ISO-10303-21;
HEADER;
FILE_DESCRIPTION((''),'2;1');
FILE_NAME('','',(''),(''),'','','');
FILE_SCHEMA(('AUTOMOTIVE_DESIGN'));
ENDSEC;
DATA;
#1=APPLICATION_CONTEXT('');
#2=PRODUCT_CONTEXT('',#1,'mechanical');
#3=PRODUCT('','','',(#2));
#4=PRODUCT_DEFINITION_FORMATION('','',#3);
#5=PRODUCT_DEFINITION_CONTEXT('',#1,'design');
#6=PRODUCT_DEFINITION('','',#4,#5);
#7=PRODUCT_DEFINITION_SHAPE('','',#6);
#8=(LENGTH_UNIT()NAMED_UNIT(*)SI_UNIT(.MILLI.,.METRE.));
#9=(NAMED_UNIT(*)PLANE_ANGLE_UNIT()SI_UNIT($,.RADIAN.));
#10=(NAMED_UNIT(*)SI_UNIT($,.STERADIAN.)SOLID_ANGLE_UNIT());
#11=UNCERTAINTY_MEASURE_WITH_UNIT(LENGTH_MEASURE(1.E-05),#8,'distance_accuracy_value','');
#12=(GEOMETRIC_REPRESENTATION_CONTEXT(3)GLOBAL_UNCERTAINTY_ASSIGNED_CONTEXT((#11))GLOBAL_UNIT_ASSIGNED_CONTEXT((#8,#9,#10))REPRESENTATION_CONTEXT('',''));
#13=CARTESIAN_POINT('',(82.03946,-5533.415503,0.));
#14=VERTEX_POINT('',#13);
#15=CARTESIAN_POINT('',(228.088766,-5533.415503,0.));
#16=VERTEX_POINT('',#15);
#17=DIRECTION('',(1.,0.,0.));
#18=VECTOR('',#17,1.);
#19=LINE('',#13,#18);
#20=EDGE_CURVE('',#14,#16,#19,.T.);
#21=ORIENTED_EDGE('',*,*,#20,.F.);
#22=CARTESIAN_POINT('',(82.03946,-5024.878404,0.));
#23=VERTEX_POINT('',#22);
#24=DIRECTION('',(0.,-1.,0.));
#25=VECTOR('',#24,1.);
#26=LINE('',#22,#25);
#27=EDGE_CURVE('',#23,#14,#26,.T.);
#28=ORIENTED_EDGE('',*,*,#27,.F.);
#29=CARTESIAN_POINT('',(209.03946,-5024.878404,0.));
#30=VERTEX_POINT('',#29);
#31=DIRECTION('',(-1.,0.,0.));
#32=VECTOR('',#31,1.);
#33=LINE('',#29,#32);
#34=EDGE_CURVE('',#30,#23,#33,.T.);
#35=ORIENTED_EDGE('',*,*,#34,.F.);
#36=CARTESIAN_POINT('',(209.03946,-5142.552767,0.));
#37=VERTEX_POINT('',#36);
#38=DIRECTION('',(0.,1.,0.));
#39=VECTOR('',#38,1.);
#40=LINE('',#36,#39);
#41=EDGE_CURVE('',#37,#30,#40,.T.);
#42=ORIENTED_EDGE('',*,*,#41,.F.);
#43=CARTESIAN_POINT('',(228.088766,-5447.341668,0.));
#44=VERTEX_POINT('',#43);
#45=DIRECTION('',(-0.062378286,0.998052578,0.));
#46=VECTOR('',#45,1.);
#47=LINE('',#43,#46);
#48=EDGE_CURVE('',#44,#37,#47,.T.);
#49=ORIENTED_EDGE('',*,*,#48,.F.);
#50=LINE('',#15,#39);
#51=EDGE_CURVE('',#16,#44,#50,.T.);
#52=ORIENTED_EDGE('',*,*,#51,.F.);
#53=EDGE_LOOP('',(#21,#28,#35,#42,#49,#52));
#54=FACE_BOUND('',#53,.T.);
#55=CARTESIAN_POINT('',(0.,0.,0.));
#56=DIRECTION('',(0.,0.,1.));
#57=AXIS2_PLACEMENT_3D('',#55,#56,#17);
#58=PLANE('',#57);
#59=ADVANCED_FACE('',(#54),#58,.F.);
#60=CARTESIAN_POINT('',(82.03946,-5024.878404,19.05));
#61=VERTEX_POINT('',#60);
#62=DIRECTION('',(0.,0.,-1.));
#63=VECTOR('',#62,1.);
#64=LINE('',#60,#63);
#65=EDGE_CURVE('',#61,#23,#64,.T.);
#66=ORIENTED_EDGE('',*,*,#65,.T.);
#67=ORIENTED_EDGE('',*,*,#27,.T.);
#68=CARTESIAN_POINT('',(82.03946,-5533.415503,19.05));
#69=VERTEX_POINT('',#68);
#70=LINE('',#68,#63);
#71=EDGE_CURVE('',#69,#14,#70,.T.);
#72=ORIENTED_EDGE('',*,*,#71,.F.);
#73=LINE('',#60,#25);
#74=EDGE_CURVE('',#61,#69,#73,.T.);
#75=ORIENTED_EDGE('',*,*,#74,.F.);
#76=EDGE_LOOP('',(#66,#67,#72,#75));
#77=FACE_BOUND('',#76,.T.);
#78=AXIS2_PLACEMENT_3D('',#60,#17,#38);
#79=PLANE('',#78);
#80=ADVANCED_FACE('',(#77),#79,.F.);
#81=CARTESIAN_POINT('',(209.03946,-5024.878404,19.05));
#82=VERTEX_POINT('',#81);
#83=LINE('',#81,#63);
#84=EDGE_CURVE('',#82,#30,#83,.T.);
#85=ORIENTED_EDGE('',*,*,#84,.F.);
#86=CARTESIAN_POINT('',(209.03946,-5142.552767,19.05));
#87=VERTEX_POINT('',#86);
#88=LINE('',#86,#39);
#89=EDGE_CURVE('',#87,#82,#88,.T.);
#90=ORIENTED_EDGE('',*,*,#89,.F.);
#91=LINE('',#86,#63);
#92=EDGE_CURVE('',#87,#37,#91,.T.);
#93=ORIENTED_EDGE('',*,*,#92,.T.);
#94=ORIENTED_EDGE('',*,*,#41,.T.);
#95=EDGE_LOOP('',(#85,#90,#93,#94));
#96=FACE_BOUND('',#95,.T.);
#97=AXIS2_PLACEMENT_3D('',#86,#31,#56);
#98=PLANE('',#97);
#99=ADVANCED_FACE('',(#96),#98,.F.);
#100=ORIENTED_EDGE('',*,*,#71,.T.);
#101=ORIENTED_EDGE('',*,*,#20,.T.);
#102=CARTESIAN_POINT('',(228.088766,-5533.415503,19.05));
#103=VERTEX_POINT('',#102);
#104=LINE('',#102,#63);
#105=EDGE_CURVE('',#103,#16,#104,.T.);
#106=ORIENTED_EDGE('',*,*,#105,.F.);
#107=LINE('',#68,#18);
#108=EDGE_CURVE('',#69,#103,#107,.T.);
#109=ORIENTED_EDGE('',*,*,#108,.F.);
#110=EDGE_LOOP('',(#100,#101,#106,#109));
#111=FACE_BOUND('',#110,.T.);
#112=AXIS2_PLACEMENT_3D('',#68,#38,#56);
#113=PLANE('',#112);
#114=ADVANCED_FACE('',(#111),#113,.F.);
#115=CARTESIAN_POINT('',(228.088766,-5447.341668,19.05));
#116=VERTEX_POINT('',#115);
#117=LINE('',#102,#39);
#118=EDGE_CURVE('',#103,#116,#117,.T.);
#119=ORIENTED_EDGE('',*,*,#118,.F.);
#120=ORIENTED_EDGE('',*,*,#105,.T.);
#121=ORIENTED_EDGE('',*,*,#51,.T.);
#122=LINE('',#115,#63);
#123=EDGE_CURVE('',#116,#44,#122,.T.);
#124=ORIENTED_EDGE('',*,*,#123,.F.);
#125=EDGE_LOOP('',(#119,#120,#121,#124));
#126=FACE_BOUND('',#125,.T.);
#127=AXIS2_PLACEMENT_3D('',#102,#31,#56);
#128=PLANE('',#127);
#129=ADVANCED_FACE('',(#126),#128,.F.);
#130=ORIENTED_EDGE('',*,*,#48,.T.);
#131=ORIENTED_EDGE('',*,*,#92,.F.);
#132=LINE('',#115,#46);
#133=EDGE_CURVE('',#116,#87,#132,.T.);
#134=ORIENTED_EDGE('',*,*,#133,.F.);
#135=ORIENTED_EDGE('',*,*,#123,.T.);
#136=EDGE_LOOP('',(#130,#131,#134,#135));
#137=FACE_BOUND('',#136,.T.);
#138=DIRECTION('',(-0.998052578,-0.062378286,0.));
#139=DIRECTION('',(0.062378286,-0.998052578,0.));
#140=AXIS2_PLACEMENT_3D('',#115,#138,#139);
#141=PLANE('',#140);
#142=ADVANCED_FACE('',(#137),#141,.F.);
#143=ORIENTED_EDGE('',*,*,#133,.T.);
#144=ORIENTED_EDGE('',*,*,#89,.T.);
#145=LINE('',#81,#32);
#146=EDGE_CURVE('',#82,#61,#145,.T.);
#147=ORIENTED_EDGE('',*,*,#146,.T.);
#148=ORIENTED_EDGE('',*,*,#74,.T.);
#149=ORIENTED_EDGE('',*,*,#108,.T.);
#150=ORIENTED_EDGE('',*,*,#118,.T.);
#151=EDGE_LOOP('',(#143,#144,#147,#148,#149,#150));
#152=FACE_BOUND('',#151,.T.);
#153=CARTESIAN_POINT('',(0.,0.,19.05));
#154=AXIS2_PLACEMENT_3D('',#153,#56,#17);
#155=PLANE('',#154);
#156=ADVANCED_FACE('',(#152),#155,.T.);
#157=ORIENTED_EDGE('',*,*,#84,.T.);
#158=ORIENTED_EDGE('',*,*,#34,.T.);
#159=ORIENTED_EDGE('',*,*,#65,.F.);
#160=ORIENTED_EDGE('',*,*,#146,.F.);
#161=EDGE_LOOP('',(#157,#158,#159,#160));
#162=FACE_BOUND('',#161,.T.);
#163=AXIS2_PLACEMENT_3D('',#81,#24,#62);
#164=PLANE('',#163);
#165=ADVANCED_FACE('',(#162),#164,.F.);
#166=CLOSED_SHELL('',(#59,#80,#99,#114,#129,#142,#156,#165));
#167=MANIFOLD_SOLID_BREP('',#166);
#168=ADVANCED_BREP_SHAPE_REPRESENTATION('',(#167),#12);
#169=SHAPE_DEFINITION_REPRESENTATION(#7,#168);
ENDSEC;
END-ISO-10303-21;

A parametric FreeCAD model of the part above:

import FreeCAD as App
import Part
import Sketcher
from FreeCAD import Vector
Q = App.Units.Quantity

doc = App.newDocument("Part")
body = doc.addObject("PartDesign::Body", "Body")

sketch1 = doc.addObject("Sketcher::SketchObject", "Sketch")
body.addObject(sketch1)
sketch1.AttachmentSupport = (doc.XY_Plane, [""])
sketch1.MapMode = "FlatFace"
sketch1.addGeometry(Part.LineSegment(Vector(82.03946, -5024.878404, 0), Vector(82.03946, -5533.415503, 0)), False)
sketch1.addGeometry(Part.LineSegment(Vector(82.03946, -5533.415503, 0), Vector(228.088766, -5533.415503, 0)), False)
sketch1.addGeometry(Part.LineSegment(Vector(228.088766, -5533.415503, 0), Vector(228.088766, -5447.341668, 0)), False)
sketch1.addGeometry(Part.LineSegment(Vector(228.088766, -5447.341668, 0), Vector(209.03946, -5142.552767, 0)), False)
sketch1.addGeometry(Part.LineSegment(Vector(209.03946, -5142.552767, 0), Vector(209.03946, -5024.878404, 0)), False)
sketch1.addGeometry(Part.LineSegment(Vector(209.03946, -5024.878404, 0), Vector(82.03946, -5024.878404, 0)), False)
sketch1.addConstraint(Sketcher.Constraint("Coincident", 0, 2, 1, 1))
sketch1.addConstraint(Sketcher.Constraint("Coincident", 1, 2, 2, 1))
sketch1.addConstraint(Sketcher.Constraint("Coincident", 2, 2, 3, 1))
sketch1.addConstraint(Sketcher.Constraint("Coincident", 3, 2, 4, 1))
sketch1.addConstraint(Sketcher.Constraint("Coincident", 4, 2, 5, 1))
sketch1.addConstraint(Sketcher.Constraint("Coincident", 5, 2, 0, 1))
sketch1.addConstraint(Sketcher.Constraint("Vertical", 0))
sketch1.addConstraint(Sketcher.Constraint("Horizontal", 1))
sketch1.addConstraint(Sketcher.Constraint("Vertical", 2))
sketch1.addConstraint(Sketcher.Constraint("Vertical", 4))
sketch1.addConstraint(Sketcher.Constraint("Horizontal", 5))
sketch1.addConstraint(Sketcher.Constraint("DistanceX", 5, 2, 5, 1, Q("5 in")))
sketch1.addConstraint(Sketcher.Constraint("DistanceY", 0, 2, 0, 1, 508.537099))
sketch1.addConstraint(Sketcher.Constraint("DistanceX", -1, 1, 0, 2, Q("3.2299 in")))
sketch1.addConstraint(Sketcher.Constraint("DistanceY", 2, 2, 3, 2, 304.788901))
sketch1.addConstraint(Sketcher.Constraint("Distance", 3, 305.383612))
sketch1.addConstraint(Sketcher.Constraint("DistanceY", 2, 1, 2, 2, 86.073835))
sketch1.addConstraint(Sketcher.Constraint("DistanceY", 2, 2, -1, 1, 5447.341668))
pad1 = doc.addObject("PartDesign::Pad", "Pad")
body.addObject(pad1)
pad1.Profile = sketch1
pad1.Length = Q("0.75 in")

doc.recompute()
